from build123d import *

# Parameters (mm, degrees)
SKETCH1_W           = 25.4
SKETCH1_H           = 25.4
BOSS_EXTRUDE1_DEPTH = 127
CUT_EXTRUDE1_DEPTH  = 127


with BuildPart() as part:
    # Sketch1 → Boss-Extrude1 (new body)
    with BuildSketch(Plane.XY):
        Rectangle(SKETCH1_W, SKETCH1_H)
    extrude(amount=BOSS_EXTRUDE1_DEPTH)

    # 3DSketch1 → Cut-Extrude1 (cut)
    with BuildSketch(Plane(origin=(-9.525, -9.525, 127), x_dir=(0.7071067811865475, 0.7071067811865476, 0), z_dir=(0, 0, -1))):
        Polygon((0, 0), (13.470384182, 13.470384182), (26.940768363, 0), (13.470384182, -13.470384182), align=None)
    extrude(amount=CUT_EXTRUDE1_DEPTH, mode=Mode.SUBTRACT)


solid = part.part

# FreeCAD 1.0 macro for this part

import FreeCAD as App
import Part
import Sketcher
from FreeCAD import Vector
Q = App.Units.Quantity


def add_polygon(sketch, points):
    """Adds a closed chain of lines whose ends are joined by coincident constraints."""
    first, n = sketch.GeometryCount, len(points)
    for a, b in zip(points, points[1:] + points[:1]):
        sketch.addGeometry(Part.LineSegment(App.Vector(*a, 0), App.Vector(*b, 0)), False)
    for i in range(n):
        sketch.addConstraint(Sketcher.Constraint("Coincident", first + i, 2, first + (i + 1) % n, 1))

doc = App.newDocument("Part")
body = doc.addObject("PartDesign::Body", "Body")

# Sketch on XY plane
sketch1 = body.newObject("Sketcher::SketchObject", "Sketch")
sketch1.AttachmentSupport = (doc.getObject("XY_Plane"), [""])
sketch1.MapMode = "FlatFace"
add_polygon(sketch1, [(-13, 13), (-13, -13), (13, -13), (13, 13)])  # lines 0-3
sketch1.addConstraint(Sketcher.Constraint("Vertical", 0))
sketch1.addConstraint(Sketcher.Constraint("Horizontal", 1))
sketch1.addConstraint(Sketcher.Constraint("Vertical", 2))
sketch1.addConstraint(Sketcher.Constraint("Horizontal", 3))
sketch1.addConstraint(Sketcher.Constraint("Symmetric", 0, 2, 2, 2, -1, 1))
sketch1.addConstraint(Sketcher.Constraint("Equal", 3, 0))
sketch1.addConstraint(Sketcher.Constraint("DistanceX", 1, 1, 1, 2, Q("1 in")))
pad1 = body.newObject("PartDesign::Pad", "Pad")
pad1.Profile = sketch1
pad1.Length = Q("5 in")

# Sketch on XY plane
sketch2 = body.newObject("Sketcher::SketchObject", "Sketch001")
sketch2.AttachmentSupport = (doc.getObject("XY_Plane"), [""])
sketch2.MapMode = "FlatFace"
sketch2.AttachmentOffset = App.Placement(Vector(0, 0, 5 * 25.4), App.Rotation())
add_polygon(sketch2, [(10, -10), (-10, -10), (-10, 10), (10, 10)])  # lines 0-3
sketch2.addConstraint(Sketcher.Constraint("Horizontal", 0))
sketch2.addConstraint(Sketcher.Constraint("Vertical", 1))
sketch2.addConstraint(Sketcher.Constraint("Horizontal", 2))
sketch2.addConstraint(Sketcher.Constraint("Vertical", 3))
sketch2.addConstraint(Sketcher.Constraint("Symmetric", 0, 2, 2, 2, -1, 1))
sketch2.addConstraint(Sketcher.Constraint("Equal", 2, 1))
sketch2.addConstraint(Sketcher.Constraint("DistanceX", 0, 2, 0, 1, Q("0.75 in")))
pocket1 = body.newObject("PartDesign::Pocket", "Pocket")
pocket1.Profile = sketch2
pocket1.Length = Q("5 in")

doc.recompute()
